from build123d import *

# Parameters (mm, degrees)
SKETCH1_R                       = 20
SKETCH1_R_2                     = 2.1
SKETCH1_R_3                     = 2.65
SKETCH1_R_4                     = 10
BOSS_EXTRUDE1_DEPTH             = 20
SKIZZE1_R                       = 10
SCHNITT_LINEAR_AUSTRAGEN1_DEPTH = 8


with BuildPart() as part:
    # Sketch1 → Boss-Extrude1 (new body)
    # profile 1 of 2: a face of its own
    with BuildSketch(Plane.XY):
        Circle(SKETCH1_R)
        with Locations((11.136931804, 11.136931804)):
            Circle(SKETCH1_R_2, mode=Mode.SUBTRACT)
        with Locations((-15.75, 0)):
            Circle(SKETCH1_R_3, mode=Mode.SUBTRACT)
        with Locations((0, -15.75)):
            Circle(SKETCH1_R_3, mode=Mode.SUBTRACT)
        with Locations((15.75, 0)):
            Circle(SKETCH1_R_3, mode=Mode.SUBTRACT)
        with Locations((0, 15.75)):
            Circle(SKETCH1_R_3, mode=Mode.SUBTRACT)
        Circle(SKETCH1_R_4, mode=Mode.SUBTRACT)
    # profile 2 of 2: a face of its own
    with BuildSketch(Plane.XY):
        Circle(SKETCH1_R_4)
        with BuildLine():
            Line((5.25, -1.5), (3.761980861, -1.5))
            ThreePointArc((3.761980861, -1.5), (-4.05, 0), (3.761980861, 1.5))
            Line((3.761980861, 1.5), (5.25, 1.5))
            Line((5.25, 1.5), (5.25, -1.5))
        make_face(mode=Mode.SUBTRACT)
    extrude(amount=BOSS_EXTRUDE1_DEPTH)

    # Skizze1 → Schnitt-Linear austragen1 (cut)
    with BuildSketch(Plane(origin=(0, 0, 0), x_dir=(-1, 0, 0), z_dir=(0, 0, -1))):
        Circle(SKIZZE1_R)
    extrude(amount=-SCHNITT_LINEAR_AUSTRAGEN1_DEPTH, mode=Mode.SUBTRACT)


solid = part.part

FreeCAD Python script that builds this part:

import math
import FreeCAD as App
import Part
import Sketcher
Q = App.Units.Quantity

doc = App.newDocument("Part")
params = doc.addObject("Spreadsheet::Sheet", "Params")
for row, (alias, value) in enumerate([
    ("sketch1_diameter", "40 mm"),
    ("sketch1_diameter2", "5.3 mm"),
    ("sketch1_diameter3", "4.2 mm"),
    ("sketch1_height", "3 mm"),
    ("sketch1_radius", "4.05 mm"),
    ("pad1_length", "20 mm"),
    ("sketch2_diameter", "20 mm"),
    ("pocket1_length", "8 mm"),
], start=1):
    params.set(f"A{row}", alias)
    params.set(f"B{row}", "=" + value)
    params.setAlias(f"B{row}", alias)

body = doc.addObject("PartDesign::Body", "Body")

# Sketch on XY plane
sketch1 = body.newObject("Sketcher::SketchObject", "Sketch")
sketch1.AttachmentSupport = (doc.getObject("XY_Plane"), [""])
sketch1.MapMode = "FlatFace"
sketch1.addGeometry(Part.Circle(App.Vector(0, 0, 0), App.Vector(0, 0, 1), 20), False)
sketch1.addGeometry(Part.Circle(App.Vector(0, -15.8, 0), App.Vector(0, 0, 1), 2.6), False)
sketch1.addGeometry(Part.Circle(App.Vector(-15.8, 0, 0), App.Vector(0, 0, 1), 2.6), False)
sketch1.addGeometry(Part.Circle(App.Vector(15.8, 0, 0), App.Vector(0, 0, 1), 2.6), False)
sketch1.addGeometry(Part.Circle(App.Vector(0, 15.8, 0), App.Vector(0, 0, 1), 2.6), False)
sketch1.addGeometry(Part.Circle(App.Vector(11.1, 11.1, 0), App.Vector(0, 0, 1), 2.1), False)
sketch1.addGeometry(Part.LineSegment(App.Vector(5.2, -1.5, 0), App.Vector(3.8, -1.5, 0)), False)
sketch1.addGeometry(Part.ArcOfCircle(Part.Circle(App.Vector(0, 0, 0), App.Vector(0, 0, 1), 4), math.radians(22), math.radians(338)), False)
sketch1.addGeometry(Part.LineSegment(App.Vector(3.8, 1.5, 0), App.Vector(5.2, 1.5, 0)), False)
sketch1.addGeometry(Part.LineSegment(App.Vector(5.2, 1.5, 0), App.Vector(5.2, -1.5, 0)), False)
sketch1.addConstraint(Sketcher.Constraint("Coincident", 6, 2, 7, 2))
sketch1.addConstraint(Sketcher.Constraint("Coincident", 7, 1, 8, 1))
sketch1.addConstraint(Sketcher.Constraint("Coincident", 8, 2, 9, 1))
sketch1.addConstraint(Sketcher.Constraint("Coincident", 9, 2, 6, 1))
sketch1.addConstraint(Sketcher.Constraint("Horizontal", 6))
sketch1.addConstraint(Sketcher.Constraint("Horizontal", 8))
sketch1.addConstraint(Sketcher.Constraint("Vertical", 9))
sketch1.addConstraint(Sketcher.Constraint("Coincident", 0, 3, -1, 1))
sketch1.addConstraint(Sketcher.Constraint("Coincident", 7, 3, -1, 1))
sketch1.addConstraint(Sketcher.Constraint("Equal", 1, 2))
sketch1.addConstraint(Sketcher.Constraint("Equal", 2, 3))
sketch1.addConstraint(Sketcher.Constraint("Equal", 3, 4))
sketch1.addConstraint(Sketcher.Constraint("Symmetric", 2, 3, 3, 3, -1, 1))
sketch1.addConstraint(Sketcher.Constraint("Symmetric", 1, 3, 4, 3, -1, 1))
sketch1.addConstraint(Sketcher.Constraint("PointOnObject", 1, 3, -2))
sketch1.addConstraint(Sketcher.Constraint("PointOnObject", 2, 3, -1))
sketch1.addConstraint(Sketcher.Constraint("Vertical", 6, 2, 7, 1))
sketch1.addConstraint(Sketcher.Constraint("Diameter", 0, Q("40 mm")))
sketch1.addConstraint(Sketcher.Constraint("Diameter", 1, Q("5.3 mm")))
sketch1.addConstraint(Sketcher.Constraint("Diameter", 5, Q("4.2 mm")))
sketch1.addConstraint(Sketcher.Constraint("DistanceY", 9, 2, 9, 1, Q("3 mm")))
sketch1.addConstraint(Sketcher.Constraint("Radius", 7, Q("4.05 mm")))
sketch1.addConstraint(Sketcher.Constraint("DistanceX", 2, 3, 3, 3, Q("31.5 mm")))
sketch1.addConstraint(Sketcher.Constraint("DistanceY", 1, 3, 4, 3, Q("31.5 mm")))
sketch1.addConstraint(Sketcher.Constraint("DistanceX", 8, 2, 3, 3, Q("10.5 mm")))
sketch1.addConstraint(Sketcher.Constraint("DistanceX", -1, 1, 5, 3, Q("11.136932 mm")))
sketch1.addConstraint(Sketcher.Constraint("DistanceY", -1, 1, 5, 3, Q("11.136932 mm")))
sketch1.setExpression("Constraints[17]", "Params.sketch1_diameter")
sketch1.setExpression("Constraints[18]", "Params.sketch1_diameter2")
sketch1.setExpression("Constraints[19]", "Params.sketch1_diameter3")
sketch1.setExpression("Constraints[20]", "Params.sketch1_height")
sketch1.setExpression("Constraints[21]", "Params.sketch1_radius")
pad1 = body.newObject("PartDesign::Pad", "Pad")
pad1.Profile = sketch1
pad1.setExpression("Length", "Params.pad1_length")

# Sketch on XY plane
sketch2 = body.newObject("Sketcher::SketchObject", "Sketch001")
sketch2.AttachmentSupport = (doc.getObject("XY_Plane"), [""])
sketch2.MapMode = "FlatFace"
sketch2.addGeometry(Part.Circle(App.Vector(0, 0, 0), App.Vector(0, 0, 1), 10), False)
sketch2.addConstraint(Sketcher.Constraint("Coincident", 0, 3, -1, 1))
sketch2.addConstraint(Sketcher.Constraint("Diameter", 0, Q("20 mm")))
sketch2.setExpression("Constraints[1]", "Params.sketch2_diameter")
pocket1 = body.newObject("PartDesign::Pocket", "Pocket")
pocket1.Profile = sketch2
pocket1.setExpression("Length", "Params.pocket1_length")
pocket1.Reversed = True

doc.recompute()
